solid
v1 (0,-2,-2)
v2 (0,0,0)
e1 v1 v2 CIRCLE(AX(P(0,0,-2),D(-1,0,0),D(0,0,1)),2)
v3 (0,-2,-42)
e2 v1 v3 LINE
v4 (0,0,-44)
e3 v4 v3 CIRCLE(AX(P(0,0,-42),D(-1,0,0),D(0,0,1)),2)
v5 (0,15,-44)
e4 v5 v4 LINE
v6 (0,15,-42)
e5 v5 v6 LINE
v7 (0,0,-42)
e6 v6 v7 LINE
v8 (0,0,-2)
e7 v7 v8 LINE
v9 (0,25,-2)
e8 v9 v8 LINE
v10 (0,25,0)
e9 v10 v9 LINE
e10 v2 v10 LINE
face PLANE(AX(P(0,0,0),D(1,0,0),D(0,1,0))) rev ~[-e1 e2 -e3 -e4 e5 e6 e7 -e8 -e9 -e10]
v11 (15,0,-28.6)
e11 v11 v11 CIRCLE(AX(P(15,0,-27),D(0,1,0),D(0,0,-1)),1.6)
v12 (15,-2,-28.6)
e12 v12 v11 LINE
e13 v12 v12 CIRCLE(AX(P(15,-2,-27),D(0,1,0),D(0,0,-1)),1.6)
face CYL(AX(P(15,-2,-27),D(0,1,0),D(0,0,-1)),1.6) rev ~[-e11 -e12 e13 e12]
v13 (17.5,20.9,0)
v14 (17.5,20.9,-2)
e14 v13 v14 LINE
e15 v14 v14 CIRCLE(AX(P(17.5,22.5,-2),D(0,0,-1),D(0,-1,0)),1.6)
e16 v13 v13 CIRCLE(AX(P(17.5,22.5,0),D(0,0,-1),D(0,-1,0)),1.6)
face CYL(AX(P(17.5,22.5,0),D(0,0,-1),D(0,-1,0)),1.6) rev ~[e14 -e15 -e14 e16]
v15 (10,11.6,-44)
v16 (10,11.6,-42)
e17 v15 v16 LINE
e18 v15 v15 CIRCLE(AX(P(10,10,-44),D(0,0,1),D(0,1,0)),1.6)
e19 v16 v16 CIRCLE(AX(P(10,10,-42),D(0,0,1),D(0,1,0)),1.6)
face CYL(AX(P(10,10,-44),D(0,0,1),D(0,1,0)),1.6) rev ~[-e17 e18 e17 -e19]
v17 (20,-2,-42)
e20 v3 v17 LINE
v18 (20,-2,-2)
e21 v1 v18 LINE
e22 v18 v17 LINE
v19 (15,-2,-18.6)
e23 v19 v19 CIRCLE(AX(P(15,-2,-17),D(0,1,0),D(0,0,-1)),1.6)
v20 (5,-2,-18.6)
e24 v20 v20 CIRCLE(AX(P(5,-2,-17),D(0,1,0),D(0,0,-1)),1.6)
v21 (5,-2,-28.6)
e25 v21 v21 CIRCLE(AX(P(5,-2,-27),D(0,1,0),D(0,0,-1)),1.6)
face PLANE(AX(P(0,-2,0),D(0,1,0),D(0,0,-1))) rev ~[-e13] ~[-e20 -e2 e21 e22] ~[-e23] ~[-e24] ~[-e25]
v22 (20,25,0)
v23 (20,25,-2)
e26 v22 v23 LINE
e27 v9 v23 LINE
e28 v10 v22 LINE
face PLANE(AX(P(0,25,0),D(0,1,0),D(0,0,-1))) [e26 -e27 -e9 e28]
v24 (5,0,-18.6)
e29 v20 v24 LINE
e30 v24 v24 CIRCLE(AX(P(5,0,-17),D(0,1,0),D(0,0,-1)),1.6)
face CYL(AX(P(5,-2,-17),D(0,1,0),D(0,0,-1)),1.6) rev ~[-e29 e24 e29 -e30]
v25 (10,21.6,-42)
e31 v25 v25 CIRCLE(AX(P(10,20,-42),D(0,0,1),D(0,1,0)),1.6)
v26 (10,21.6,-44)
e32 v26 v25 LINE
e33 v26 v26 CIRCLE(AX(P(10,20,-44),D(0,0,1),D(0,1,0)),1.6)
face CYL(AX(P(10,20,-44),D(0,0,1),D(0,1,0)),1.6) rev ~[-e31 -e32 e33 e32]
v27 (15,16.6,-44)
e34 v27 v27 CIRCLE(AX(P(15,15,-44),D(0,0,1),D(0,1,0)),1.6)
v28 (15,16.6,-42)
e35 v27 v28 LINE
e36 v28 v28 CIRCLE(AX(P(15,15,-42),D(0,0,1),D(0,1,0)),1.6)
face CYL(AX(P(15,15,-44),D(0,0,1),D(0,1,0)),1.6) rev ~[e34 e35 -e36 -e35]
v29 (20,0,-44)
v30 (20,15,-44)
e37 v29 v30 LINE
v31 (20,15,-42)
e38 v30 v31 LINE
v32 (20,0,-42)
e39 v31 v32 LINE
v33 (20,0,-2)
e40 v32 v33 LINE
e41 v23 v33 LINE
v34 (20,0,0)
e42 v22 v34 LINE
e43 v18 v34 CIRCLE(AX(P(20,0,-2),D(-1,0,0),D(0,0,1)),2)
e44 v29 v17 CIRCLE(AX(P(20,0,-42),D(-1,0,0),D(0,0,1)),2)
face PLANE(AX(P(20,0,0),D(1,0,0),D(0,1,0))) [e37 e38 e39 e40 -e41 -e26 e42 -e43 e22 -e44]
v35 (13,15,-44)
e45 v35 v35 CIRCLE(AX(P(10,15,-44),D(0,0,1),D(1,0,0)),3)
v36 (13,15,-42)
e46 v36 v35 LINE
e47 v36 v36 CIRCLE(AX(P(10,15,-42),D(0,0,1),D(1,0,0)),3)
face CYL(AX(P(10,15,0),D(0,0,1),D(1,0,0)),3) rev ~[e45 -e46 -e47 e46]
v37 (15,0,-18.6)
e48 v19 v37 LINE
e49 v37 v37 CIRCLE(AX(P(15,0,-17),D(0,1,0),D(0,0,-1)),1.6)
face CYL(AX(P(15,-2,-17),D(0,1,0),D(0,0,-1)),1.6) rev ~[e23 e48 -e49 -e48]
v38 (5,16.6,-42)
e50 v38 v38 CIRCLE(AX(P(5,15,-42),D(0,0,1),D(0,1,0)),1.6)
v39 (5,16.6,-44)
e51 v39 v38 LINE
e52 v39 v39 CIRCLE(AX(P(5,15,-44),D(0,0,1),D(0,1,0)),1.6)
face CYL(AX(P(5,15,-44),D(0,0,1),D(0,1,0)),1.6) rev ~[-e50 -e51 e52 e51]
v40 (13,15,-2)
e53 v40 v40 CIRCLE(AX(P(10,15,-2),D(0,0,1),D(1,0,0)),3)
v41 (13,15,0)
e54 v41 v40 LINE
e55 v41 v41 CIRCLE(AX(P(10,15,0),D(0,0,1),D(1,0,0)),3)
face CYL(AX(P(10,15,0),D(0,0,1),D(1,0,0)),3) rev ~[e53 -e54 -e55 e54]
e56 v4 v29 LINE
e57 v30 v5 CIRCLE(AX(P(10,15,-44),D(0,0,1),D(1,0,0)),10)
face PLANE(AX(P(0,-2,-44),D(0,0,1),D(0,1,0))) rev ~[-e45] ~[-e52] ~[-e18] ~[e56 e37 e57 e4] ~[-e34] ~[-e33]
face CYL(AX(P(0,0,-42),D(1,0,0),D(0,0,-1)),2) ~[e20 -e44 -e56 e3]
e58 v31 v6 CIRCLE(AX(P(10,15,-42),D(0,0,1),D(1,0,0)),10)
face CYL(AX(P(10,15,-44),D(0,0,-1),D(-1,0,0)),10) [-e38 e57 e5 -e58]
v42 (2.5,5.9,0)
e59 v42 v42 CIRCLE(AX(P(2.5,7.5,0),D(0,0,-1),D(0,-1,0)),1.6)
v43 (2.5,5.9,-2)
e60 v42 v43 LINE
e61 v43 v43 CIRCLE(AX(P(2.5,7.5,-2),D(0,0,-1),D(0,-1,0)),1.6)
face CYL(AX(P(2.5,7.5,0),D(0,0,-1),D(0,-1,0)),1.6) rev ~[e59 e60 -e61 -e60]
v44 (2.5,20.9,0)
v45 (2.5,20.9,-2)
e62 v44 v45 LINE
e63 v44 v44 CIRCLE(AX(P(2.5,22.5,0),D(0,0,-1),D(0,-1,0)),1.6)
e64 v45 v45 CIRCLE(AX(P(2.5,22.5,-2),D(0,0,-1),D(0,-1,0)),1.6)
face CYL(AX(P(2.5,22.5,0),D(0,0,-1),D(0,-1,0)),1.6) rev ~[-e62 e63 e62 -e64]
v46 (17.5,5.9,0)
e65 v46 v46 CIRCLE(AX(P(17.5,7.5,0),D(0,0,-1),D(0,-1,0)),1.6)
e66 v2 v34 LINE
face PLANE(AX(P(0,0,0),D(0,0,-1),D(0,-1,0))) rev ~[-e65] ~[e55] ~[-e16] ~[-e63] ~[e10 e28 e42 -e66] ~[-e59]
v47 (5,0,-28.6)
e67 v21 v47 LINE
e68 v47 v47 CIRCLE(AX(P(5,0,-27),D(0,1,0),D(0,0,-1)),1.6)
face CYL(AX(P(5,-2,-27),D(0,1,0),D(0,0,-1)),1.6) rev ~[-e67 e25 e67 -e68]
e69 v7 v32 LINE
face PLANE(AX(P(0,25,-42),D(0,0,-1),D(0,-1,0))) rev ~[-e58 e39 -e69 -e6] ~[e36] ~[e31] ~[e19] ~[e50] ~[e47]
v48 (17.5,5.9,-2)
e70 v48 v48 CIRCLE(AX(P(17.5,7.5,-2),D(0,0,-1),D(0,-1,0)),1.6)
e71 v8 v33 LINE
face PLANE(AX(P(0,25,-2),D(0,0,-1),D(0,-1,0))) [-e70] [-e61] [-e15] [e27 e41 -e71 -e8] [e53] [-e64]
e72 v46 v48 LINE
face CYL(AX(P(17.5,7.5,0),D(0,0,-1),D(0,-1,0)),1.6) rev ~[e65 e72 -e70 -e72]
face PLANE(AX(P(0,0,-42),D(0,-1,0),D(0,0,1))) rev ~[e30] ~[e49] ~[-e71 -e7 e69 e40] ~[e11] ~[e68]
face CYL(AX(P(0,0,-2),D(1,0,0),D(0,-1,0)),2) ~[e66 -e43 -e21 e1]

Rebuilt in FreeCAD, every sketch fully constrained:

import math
import FreeCAD as App
import Part
import Sketcher

V = App.Vector


def edges_at(feature, points):
    """Names of the edges that pass closest to the given points."""
    edges = feature.Shape.Edges
    near = lambda p: min(range(len(edges)), key=lambda i: edges[i].distToShape(Part.Vertex(*p))[0])
    return sorted({f"Edge{near(p) + 1}" for p in points})


def add_polygon(sketch, points):
    """Adds a closed chain of lines whose ends are joined by coincident constraints."""
    first, n = sketch.GeometryCount, len(points)
    for a, b in zip(points, points[1:] + points[:1]):
        sketch.addGeometry(Part.LineSegment(App.Vector(*a, 0), App.Vector(*b, 0)), False)
    for i in range(n):
        sketch.addConstraint(Sketcher.Constraint("Coincident", first + i, 2, first + (i + 1) % n, 1))

doc = App.newDocument("Part")
params = doc.addObject("Spreadsheet::Sheet", "Params")
for row, (alias, value) in enumerate([
    ("sketch1_width", "25 mm"),
    ("sketch1_height", "2 mm"),
    ("sketch1_height2", "44 mm"),
    ("pad1_length", "20 mm"),
    ("sketch2_diameter", "3.2 mm"),
    ("hole_diameter", "3.2 mm"),
    ("hole_depth", "2 mm"),
    ("sketch3_diameter", "6 mm"),
    ("sketch4_diameter", "3.2 mm"),
    ("hole2_diameter", "3.2 mm"),
    ("hole2_depth", "2 mm"),
    ("sketch5_radius", "10 mm"),
    ("pocket2_length", "2 mm"),
    ("sketch6_diameter", "3.2 mm"),
    ("hole3_diameter", "3.2 mm"),
    ("hole3_depth", "2 mm"),
    ("fillet_radius", "2 mm"),
], start=1):
    params.set(f"A{row}", alias)
    params.set(f"B{row}", "=" + value)
    params.setAlias(f"B{row}", alias)

body = doc.addObject("PartDesign::Body", "Body")

# Sketch on YZ plane
sketch1 = body.newObject("Sketcher::SketchObject", "Sketch")
sketch1.AttachmentSupport = (doc.getObject("YZ_Plane"), [""])
sketch1.MapMode = "FlatFace"
add_polygon(sketch1, [(0, -42), (0, -2), (25, -2), (25, 0), (-2, 0), (-2, -44), (25, -44), (25, -42)])  # lines 0-7
sketch1.addConstraint([
    Sketcher.Constraint("Vertical", 0),
    Sketcher.Constraint("Horizontal", 1),
    Sketcher.Constraint("Vertical", 2),
    Sketcher.Constraint("Horizontal", 3),
    Sketcher.Constraint("Vertical", 4),
    Sketcher.Constraint("Horizontal", 5),
    Sketcher.Constraint("Vertical", 6),
    Sketcher.Constraint("Horizontal", 7),
    Sketcher.Constraint("PointOnObject", 0, 2, -2),
    Sketcher.Constraint("PointOnObject", 2, 2, -1),
    Sketcher.Constraint("Vertical", 2, 2, 5, 2),
    Sketcher.Constraint("Equal", 2, 6),
    Sketcher.Constraint("DistanceX", 1, 1, 1, 2, 25.0),
    Sketcher.Constraint("DistanceY", 2, 1, 2, 2, 2.0),
    Sketcher.Constraint("DistanceY", 4, 2, 4, 1, 44.0),
    Sketcher.Constraint("DistanceX", 3, 2, -1, 1, 2.0),
])
sketch1.setExpression("Constraints[20]", "Params.sketch1_width")
sketch1.setExpression("Constraints[21]", "Params.sketch1_height")
sketch1.setExpression("Constraints[22]", "Params.sketch1_height2")
pad1 = body.newObject("PartDesign::Pad", "Pad")
pad1.Profile = sketch1
pad1.setExpression("Length", "Params.pad1_length")

# Sketch on XY plane
sketch2 = body.newObject("Sketcher::SketchObject", "Sketch001")
sketch2.AttachmentSupport = (doc.getObject("XY_Plane"), [""])
sketch2.MapMode = "FlatFace"
sketch2.addGeometry([
    Part.Circle(V(2.5, 22.5, 0), V(0, 0, 1), 1.6),
    Part.Circle(V(17.5, 22.5, 0), V(0, 0, 1), 1.6),
    Part.Circle(V(17.5, 7.5, 0), V(0, 0, 1), 1.6),
    Part.Circle(V(2.5, 7.5, 0), V(0, 0, 1), 1.6),
], False)
sketch2.addConstraint([
    Sketcher.Constraint("Equal", 0, 1),
    Sketcher.Constraint("Equal", 1, 2),
    Sketcher.Constraint("Equal", 2, 3),
    Sketcher.Constraint("Horizontal", 0, 3, 1, 3),
    Sketcher.Constraint("Horizontal", 2, 3, 3, 3),
    Sketcher.Constraint("Vertical", 1, 3, 2, 3),
    Sketcher.Constraint("Vertical", 0, 3, 3, 3),
    Sketcher.Constraint("Diameter", 0, 3.2),
    Sketcher.Constraint("DistanceX", 0, 3, 1, 3, 15.0),
    Sketcher.Constraint("DistanceY", 2, 3, 1, 3, 15.0),
    Sketcher.Constraint("DistanceX", -1, 1, 0, 3, 2.5),
    Sketcher.Constraint("DistanceY", -1, 1, 0, 3, 22.5),
])
sketch2.setExpression("Constraints[7]", "Params.sketch2_diameter")
doc.recompute()
hole = body.newObject("PartDesign::Hole", "Hole")
hole.Profile = sketch2
hole.ThreadType = "None"
hole.setExpression("Diameter", "Params.hole_diameter")
hole.DepthType = "Dimension"
hole.setExpression("Depth", "Params.hole_depth")
hole.DrillPoint = "Angled"
hole.DrillPointAngle = 118

# Sketch on XY plane
sketch3 = body.newObject("Sketcher::SketchObject", "Sketch002")
sketch3.AttachmentSupport = (doc.getObject("XY_Plane"), [""])
sketch3.MapMode = "FlatFace"
sketch3.addGeometry(Part.Circle(V(10, 15, 0), V(0, 0, 1), 3), False)
sketch3.addConstraint([
    Sketcher.Constraint("Diameter", 0, 6.0),
    Sketcher.Constraint("DistanceX", -1, 1, 0, 3, 10.0),
    Sketcher.Constraint("DistanceY", -1, 1, 0, 3, 15.0),
])
sketch3.setExpression("Constraints[0]", "Params.sketch3_diameter")
pocket1 = body.newObject("PartDesign::Pocket", "Pocket")
pocket1.Profile = sketch3
pocket1.Type = "ThroughAll"

# Sketch on XY plane
sketch4 = body.newObject("Sketcher::SketchObject", "Sketch003")
sketch4.AttachmentSupport = (doc.getObject("XY_Plane"), [""])
sketch4.MapMode = "FlatFace"
sketch4.AttachmentOffset = App.Placement(V(0, 0, -44), App.Rotation())
sketch4.addGeometry([
    Part.Circle(V(10, 20, 0), V(0, 0, 1), 1.6),
    Part.Circle(V(15, 15, 0), V(0, 0, 1), 1.6),
    Part.Circle(V(5, 15, 0), V(0, 0, 1), 1.6),
    Part.Circle(V(10, 10, 0), V(0, 0, 1), 1.6),
], False)
sketch4.addConstraint([
    Sketcher.Constraint("Equal", 0, 1),
    Sketcher.Constraint("Equal", 1, 2),
    Sketcher.Constraint("Equal", 2, 3),
    Sketcher.Constraint("Horizontal", 1, 3, 2, 3),
    Sketcher.Constraint("Vertical", 0, 3, 3, 3),
    Sketcher.Constraint("Diameter", 0, 3.2),
    Sketcher.Constraint("DistanceX", -1, 1, 0, 3, 10.0),
    Sketcher.Constraint("DistanceY", -1, 1, 0, 3, 20.0),
    Sketcher.Constraint("DistanceX", -1, 1, 1, 3, 15.0),
    Sketcher.Constraint("DistanceY", -1, 1, 1, 3, 15.0),
    Sketcher.Constraint("DistanceX", -1, 1, 2, 3, 5.0),
    Sketcher.Constraint("DistanceY", -1, 1, 3, 3, 10.0),
])
sketch4.setExpression("Constraints[5]", "Params.sketch4_diameter")
doc.recompute()
hole2 = body.newObject("PartDesign::Hole", "Hole001")
hole2.Profile = sketch4
hole2.ThreadType = "None"
hole2.setExpression("Diameter", "Params.hole2_diameter")
hole2.DepthType = "Dimension"
hole2.setExpression("Depth", "Params.hole2_depth")
hole2.DrillPoint = "Angled"
hole2.DrillPointAngle = 118
hole2.Reversed = True

# Sketch on XY plane
sketch5 = body.newObject("Sketcher::SketchObject", "Sketch004")
sketch5.AttachmentSupport = (doc.getObject("XY_Plane"), [""])
sketch5.MapMode = "FlatFace"
sketch5.AttachmentOffset = App.Placement(V(0, 0, -44), App.Rotation())
sketch5.addGeometry([
    Part.ArcOfCircle(Part.Circle(V(10, 15, 0), V(0, 0, 1), 10), math.radians(90), math.radians(180)),  # 0
    Part.LineSegment(V(0, 15, 0), V(0, 25, 0)),  # 1
    Part.LineSegment(V(0, 25, 0), V(10, 25, 0)),  # 2
    Part.LineSegment(V(20, 25, 0), V(20, 15, 0)),  # 3
    Part.ArcOfCircle(Part.Circle(V(10, 15, 0), V(0, 0, 1), 10), math.radians(0), math.radians(90)),  # 4
    Part.LineSegment(V(10, 25, 0), V(20, 25, 0)),  # 5
], False)
sketch5.addConstraint([
    Sketcher.Constraint("Tangent", 0, 2, 1, 1),
    Sketcher.Constraint("Coincident", 1, 2, 2, 1),
    Sketcher.Constraint("Tangent", 2, 2, 0, 1),
    Sketcher.Constraint("Tangent", 3, 2, 4, 1),
    Sketcher.Constraint("Tangent", 4, 2, 5, 1),
    Sketcher.Constraint("Coincident", 5, 2, 3, 1),
    Sketcher.Constraint("Vertical", 1),
    Sketcher.Constraint("Horizontal", 2),
    Sketcher.Constraint("Vertical", 3),
    Sketcher.Constraint("Horizontal", 5),
    Sketcher.Constraint("Coincident", 4, 3, 0, 3),
    Sketcher.Constraint("Equal", 0, 4),
    Sketcher.Constraint("PointOnObject", 0, 2, -2),
    Sketcher.Constraint("Radius", 0, 10.0),
    Sketcher.Constraint("DistanceY", -1, 1, 0, 3, 15.0),
])
sketch5.setExpression("Constraints[13]", "Params.sketch5_radius")
pocket2 = body.newObject("PartDesign::Pocket", "Pocket001")
pocket2.Profile = sketch5
pocket2.setExpression("Length", "Params.pocket2_length")
pocket2.Reversed = True

# Sketch on XZ plane
sketch6 = body.newObject("Sketcher::SketchObject", "Sketch005")
sketch6.AttachmentSupport = (doc.getObject("XZ_Plane"), [""])
sketch6.MapMode = "FlatFace"
sketch6.AttachmentOffset = App.Placement(V(0, 0, 2), App.Rotation())
sketch6.addGeometry([
    Part.Circle(V(5, -27, 0), V(0, 0, 1), 1.6),
    Part.Circle(V(5, -17, 0), V(0, 0, 1), 1.6),
    Part.Circle(V(15, -17, 0), V(0, 0, 1), 1.6),
    Part.Circle(V(15, -27, 0), V(0, 0, 1), 1.6),
], False)
sketch6.addConstraint([
    Sketcher.Constraint("Equal", 0, 1),
    Sketcher.Constraint("Equal", 1, 2),
    Sketcher.Constraint("Equal", 2, 3),
    Sketcher.Constraint("Horizontal", 1, 3, 2, 3),
    Sketcher.Constraint("Horizontal", 0, 3, 3, 3),
    Sketcher.Constraint("Vertical", 0, 3, 1, 3),
    Sketcher.Constraint("Vertical", 2, 3, 3, 3),
    Sketcher.Constraint("Diameter", 0, 3.2),
    Sketcher.Constraint("DistanceX", -1, 1, 0, 3, 5.0),
    Sketcher.Constraint("DistanceY", 0, 3, -1, 1, 27.0),
    Sketcher.Constraint("DistanceY", 1, 3, -1, 1, 17.0),
    Sketcher.Constraint("DistanceX", -1, 1, 2, 3, 15.0),
])
sketch6.setExpression("Constraints[7]", "Params.sketch6_diameter")
doc.recompute()
hole3 = body.newObject("PartDesign::Hole", "Hole002")
hole3.Profile = sketch6
hole3.ThreadType = "None"
hole3.setExpression("Diameter", "Params.hole3_diameter")
hole3.DepthType = "Dimension"
hole3.setExpression("Depth", "Params.hole3_depth")
hole3.DrillPoint = "Angled"
hole3.DrillPointAngle = 118
doc.recompute()

fillet = body.newObject("PartDesign::Fillet", "Fillet")
fillet.Base = (hole3, edges_at(hole3, [(10, -2, -44), (10, -2, 0)]))
fillet.setExpression("Radius", "Params.fillet_radius")

doc.recompute()
